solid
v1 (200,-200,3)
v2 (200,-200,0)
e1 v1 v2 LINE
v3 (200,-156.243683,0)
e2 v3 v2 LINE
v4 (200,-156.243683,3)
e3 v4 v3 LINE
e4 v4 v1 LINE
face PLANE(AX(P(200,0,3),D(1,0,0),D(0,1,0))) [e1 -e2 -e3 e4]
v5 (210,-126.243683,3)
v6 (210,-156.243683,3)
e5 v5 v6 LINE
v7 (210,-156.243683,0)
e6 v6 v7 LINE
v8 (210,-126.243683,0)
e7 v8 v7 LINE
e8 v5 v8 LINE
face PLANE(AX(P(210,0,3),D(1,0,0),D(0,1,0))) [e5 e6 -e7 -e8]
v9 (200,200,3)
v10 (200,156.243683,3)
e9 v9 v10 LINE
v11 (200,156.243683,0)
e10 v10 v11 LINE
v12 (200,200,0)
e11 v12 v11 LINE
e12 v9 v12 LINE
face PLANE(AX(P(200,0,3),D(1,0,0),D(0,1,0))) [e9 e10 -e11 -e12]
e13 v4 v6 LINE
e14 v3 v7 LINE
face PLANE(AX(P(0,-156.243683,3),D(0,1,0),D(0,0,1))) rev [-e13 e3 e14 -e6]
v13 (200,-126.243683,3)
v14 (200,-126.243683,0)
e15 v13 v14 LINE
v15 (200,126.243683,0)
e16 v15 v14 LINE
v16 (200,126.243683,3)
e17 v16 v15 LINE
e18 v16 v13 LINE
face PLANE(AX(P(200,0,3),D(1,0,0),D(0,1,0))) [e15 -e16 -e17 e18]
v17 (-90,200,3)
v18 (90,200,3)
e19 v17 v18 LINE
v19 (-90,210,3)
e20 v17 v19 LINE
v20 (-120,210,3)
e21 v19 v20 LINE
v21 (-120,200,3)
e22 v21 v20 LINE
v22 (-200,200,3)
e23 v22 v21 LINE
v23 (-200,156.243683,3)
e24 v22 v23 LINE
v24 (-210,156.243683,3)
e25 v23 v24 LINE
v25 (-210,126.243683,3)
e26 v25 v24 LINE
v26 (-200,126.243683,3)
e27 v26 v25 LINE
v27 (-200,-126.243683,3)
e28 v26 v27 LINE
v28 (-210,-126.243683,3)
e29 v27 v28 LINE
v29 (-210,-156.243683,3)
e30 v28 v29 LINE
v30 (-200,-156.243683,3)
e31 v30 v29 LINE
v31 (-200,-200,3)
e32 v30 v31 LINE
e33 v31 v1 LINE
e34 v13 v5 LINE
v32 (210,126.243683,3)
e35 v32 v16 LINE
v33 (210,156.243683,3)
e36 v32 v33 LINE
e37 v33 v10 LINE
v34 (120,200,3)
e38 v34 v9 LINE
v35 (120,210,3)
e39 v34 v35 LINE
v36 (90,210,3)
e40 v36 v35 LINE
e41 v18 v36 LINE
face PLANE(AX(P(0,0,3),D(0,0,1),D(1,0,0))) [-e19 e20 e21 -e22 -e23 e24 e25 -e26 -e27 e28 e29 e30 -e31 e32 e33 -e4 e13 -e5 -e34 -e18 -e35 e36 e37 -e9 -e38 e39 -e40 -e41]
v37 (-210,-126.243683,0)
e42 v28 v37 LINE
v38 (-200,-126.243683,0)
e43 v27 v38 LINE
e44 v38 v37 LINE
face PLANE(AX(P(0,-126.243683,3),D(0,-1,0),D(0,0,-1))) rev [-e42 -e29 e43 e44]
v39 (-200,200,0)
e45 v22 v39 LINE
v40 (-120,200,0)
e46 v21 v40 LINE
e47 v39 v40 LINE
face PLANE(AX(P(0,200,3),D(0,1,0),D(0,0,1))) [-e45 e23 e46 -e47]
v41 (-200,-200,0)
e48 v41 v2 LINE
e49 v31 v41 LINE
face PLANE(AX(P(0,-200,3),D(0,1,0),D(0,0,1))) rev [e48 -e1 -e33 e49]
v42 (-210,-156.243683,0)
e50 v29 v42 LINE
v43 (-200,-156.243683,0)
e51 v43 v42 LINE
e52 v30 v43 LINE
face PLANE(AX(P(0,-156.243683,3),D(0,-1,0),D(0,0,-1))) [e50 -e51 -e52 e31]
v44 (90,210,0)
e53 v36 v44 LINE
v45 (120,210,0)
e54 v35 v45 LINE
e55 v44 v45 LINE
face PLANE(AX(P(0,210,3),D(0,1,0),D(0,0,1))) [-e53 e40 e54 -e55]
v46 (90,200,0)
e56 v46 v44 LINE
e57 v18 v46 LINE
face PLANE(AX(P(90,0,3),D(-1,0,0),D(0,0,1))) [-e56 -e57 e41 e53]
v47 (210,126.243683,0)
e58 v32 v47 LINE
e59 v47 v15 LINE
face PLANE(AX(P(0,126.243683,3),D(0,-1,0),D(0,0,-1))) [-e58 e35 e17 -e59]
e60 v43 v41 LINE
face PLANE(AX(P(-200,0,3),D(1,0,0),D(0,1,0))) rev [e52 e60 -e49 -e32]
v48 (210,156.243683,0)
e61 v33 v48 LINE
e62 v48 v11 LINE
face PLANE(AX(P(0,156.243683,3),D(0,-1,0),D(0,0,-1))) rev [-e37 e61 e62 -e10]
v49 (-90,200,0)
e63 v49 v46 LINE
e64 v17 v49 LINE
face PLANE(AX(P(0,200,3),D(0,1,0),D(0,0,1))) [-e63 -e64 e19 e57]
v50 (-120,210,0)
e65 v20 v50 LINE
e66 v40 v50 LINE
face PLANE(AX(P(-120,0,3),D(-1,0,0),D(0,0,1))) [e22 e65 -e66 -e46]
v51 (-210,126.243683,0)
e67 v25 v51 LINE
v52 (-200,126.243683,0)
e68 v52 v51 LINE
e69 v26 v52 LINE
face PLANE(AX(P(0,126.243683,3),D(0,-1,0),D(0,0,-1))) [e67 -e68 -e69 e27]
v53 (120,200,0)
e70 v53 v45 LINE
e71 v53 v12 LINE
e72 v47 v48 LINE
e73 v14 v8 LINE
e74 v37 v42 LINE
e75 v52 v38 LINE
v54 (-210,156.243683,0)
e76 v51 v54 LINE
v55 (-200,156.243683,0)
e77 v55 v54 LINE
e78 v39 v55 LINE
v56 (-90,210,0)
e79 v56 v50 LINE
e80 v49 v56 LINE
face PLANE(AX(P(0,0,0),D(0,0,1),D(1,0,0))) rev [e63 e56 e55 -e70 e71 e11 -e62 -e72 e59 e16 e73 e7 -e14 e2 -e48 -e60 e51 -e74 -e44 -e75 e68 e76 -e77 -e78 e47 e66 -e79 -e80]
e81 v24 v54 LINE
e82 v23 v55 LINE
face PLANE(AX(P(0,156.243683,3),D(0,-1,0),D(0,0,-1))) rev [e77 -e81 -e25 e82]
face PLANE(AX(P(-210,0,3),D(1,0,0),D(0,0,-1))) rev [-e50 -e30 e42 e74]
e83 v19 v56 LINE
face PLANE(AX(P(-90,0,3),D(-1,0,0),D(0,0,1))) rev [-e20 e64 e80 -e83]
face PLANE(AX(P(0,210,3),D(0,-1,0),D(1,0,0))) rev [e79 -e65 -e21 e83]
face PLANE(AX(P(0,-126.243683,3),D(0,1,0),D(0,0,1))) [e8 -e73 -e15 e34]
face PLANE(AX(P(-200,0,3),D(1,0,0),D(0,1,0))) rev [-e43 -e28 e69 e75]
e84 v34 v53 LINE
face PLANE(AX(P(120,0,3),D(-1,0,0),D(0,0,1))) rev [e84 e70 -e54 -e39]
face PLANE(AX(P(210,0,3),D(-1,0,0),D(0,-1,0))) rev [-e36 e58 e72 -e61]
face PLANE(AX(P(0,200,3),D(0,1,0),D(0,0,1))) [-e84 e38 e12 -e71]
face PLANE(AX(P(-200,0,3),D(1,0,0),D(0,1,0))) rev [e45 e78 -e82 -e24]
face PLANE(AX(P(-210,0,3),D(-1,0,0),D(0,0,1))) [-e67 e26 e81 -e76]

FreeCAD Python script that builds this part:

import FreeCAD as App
import Part
import Sketcher


def add_polygon(sketch, points):
    """Adds a closed chain of lines whose ends are joined by coincident constraints."""
    first, n = sketch.GeometryCount, len(points)
    for a, b in zip(points, points[1:] + points[:1]):
        sketch.addGeometry(Part.LineSegment(App.Vector(*a, 0), App.Vector(*b, 0)), False)
    for i in range(n):
        sketch.addConstraint(Sketcher.Constraint("Coincident", first + i, 2, first + (i + 1) % n, 1))

doc = App.newDocument("Part")
body = doc.addObject("PartDesign::Body", "Body")

sketch1 = body.newObject("Sketcher::SketchObject", "Sketch")
sketch1.AttachmentSupport = (doc.getObject("XY_Plane"), [""])
sketch1.MapMode = "FlatFace"
add_polygon(sketch1, [(-200, -156), (-200, -200), (200, -200), (200, -156), (210, -156), (210, -126), (200, -126), (200, 126), (210, 126), (210, 156), (200, 156), (200, 200), (120, 200), (120, 210), (90, 210), (90, 200), (-90, 200), (-90, 210), (-120, 210), (-120, 200), (-200, 200), (-200, 156), (-210, 156), (-210, 126), (-200, 126), (-200, -126), (-210, -126), (-210, -156)])
sketch1.addConstraint([
    Sketcher.Constraint("Vertical", 0),
    Sketcher.Constraint("Horizontal", 1),
    Sketcher.Constraint("Vertical", 2),
    Sketcher.Constraint("Horizontal", 3),
    Sketcher.Constraint("Vertical", 4),
    Sketcher.Constraint("Horizontal", 5),
    Sketcher.Constraint("Vertical", 6),
    Sketcher.Constraint("Horizontal", 7),
    Sketcher.Constraint("Vertical", 8),
    Sketcher.Constraint("Horizontal", 9),
    Sketcher.Constraint("Vertical", 10),
    Sketcher.Constraint("Horizontal", 11),
    Sketcher.Constraint("Vertical", 12),
    Sketcher.Constraint("Horizontal", 13),
    Sketcher.Constraint("Vertical", 14),
    Sketcher.Constraint("Horizontal", 15),
    Sketcher.Constraint("Vertical", 16),
    Sketcher.Constraint("Horizontal", 17),
    Sketcher.Constraint("Vertical", 18),
    Sketcher.Constraint("Horizontal", 19),
    Sketcher.Constraint("Vertical", 20),
    Sketcher.Constraint("Horizontal", 21),
    Sketcher.Constraint("Vertical", 22),
    Sketcher.Constraint("Horizontal", 23),
    Sketcher.Constraint("Vertical", 24),
    Sketcher.Constraint("Horizontal", 25),
    Sketcher.Constraint("Vertical", 26),
    Sketcher.Constraint("Horizontal", 27),
    Sketcher.Constraint("Symmetric", 0, 2, 10, 2, -1, 1),
    Sketcher.Constraint("Symmetric", 1, 2, 19, 2, -1, 1),
    Sketcher.Constraint("Symmetric", 3, 2, 21, 2, -1, 1),
    Sketcher.Constraint("Symmetric", 5, 2, 23, 2, -1, 1),
    Sketcher.Constraint("Symmetric", 7, 2, 25, 2, -1, 1),
    Sketcher.Constraint("Symmetric", 13, 2, 16, 2, -2),
    Sketcher.Constraint("Symmetric", 9, 2, 20, 2, -2),
    Sketcher.Constraint("Symmetric", 7, 2, 22, 2, -2),
    Sketcher.Constraint("Horizontal", 11, 2, 14, 2),
    Sketcher.Constraint("Horizontal", 3, 2, 26, 2),
    Sketcher.Constraint("Vertical", 2, 2, 5, 2),
    Sketcher.Constraint("Equal", 13, 17),
    Sketcher.Constraint("Equal", 17, 4),
    Sketcher.Constraint("Equal", 27, 12),
    Sketcher.Constraint("DistanceX", 1, 1, 1, 2, 400.0),
    Sketcher.Constraint("DistanceX", 3, 1, 3, 2, 10.0),
    Sketcher.Constraint("DistanceX", 11, 2, 11, 1, 80.0),
    Sketcher.Constraint("DistanceX", 13, 2, 13, 1, 30.0),
    Sketcher.Constraint("DistanceY", 0, 2, -1, 1, 200.0),
    Sketcher.Constraint("DistanceY", 0, 2, 0, 1, 43.756317),
])
pad1 = body.newObject("PartDesign::Pad", "Pad")
pad1.Profile = sketch1
pad1.Length = 3

doc.recompute()
